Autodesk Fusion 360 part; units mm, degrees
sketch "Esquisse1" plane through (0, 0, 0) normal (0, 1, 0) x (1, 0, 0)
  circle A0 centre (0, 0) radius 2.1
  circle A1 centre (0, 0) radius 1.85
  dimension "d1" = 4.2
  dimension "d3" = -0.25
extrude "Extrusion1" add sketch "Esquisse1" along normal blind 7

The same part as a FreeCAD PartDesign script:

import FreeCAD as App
import Part
import Sketcher

V = App.Vector

doc = App.newDocument("Part")
body = doc.addObject("PartDesign::Body", "Body")

sketch1 = doc.addObject("Sketcher::SketchObject", "Sketch")
body.addObject(sketch1)
sketch1.AttachmentSupport = (doc.XZ_Plane, [""])
sketch1.MapMode = "FlatFace"
sketch1.addGeometry(Part.Circle(V(0, 0, 0), V(0, 0, 1), 2.1), False)
sketch1.addGeometry(Part.Circle(V(0, 0, 0), V(0, 0, 1), 1.9), False)
sketch1.addConstraint(Sketcher.Constraint("Coincident", 0, 3, -1, 1))
sketch1.addConstraint(Sketcher.Constraint("Coincident", 1, 3, -1, 1))
sketch1.addConstraint(Sketcher.Constraint("Diameter", 0, 4.2))
sketch1.addConstraint(Sketcher.Constraint("Diameter", 1, 3.7))
pad1 = doc.addObject("PartDesign::Pad", "Pad")
body.addObject(pad1)
pad1.Profile = sketch1
pad1.Length = 7
pad1.Reversed = True

doc.recompute()
